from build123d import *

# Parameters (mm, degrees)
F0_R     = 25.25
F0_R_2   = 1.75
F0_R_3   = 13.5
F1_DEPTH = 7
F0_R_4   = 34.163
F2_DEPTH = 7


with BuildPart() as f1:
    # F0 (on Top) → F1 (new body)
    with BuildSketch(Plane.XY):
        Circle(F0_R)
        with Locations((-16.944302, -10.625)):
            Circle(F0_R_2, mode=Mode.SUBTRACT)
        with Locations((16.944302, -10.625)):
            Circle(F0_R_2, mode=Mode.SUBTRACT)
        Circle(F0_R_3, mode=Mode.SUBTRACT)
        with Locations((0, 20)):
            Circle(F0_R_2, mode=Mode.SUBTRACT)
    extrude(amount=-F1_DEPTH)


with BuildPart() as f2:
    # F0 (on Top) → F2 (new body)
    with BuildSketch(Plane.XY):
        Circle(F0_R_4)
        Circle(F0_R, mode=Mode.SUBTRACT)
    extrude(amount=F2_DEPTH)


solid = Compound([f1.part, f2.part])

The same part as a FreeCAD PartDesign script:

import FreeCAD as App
import Part
import Sketcher

V = App.Vector
Q = App.Units.Quantity

doc = App.newDocument("Part")
params = doc.addObject("Spreadsheet::Sheet", "Params")
for row, (alias, value) in enumerate([
    ("sketch1_diameter", "27 mm"),
    ("sketch1_diameter2", "50.5 mm"),
    ("sketch1_diameter3", "3.5 mm"),
    ("pad1_length", "7 mm"),
    ("sketch2_diameter", "50.5 mm"),
    ("pad2_length", "7 mm"),
], start=1):
    params.set(f"A{row}", alias)
    params.set(f"B{row}", "=" + value)
    params.setAlias(f"B{row}", alias)

body = doc.addObject("PartDesign::Body", "Body")

sketch1 = doc.addObject("Sketcher::SketchObject", "Sketch")
body.addObject(sketch1)
sketch1.AttachmentSupport = (doc.XY_Plane, [""])
sketch1.MapMode = "FlatFace"
sketch1.addGeometry([
    Part.Circle(V(0, 0, 0), V(0, 0, 1), 25.25),
    Part.Circle(V(-16.944302, -10.625, 0), V(0, 0, 1), 1.75),
    Part.Circle(V(0, 0, 0), V(0, 0, 1), 13.5),
    Part.Circle(V(16.944302, -10.625, 0), V(0, 0, 1), 1.75),
    Part.Circle(V(0, 20, 0), V(0, 0, 1), 1.75),
], False)
sketch1.addConstraint([
    Sketcher.Constraint("Coincident", 0, 3, -1, 1),
    Sketcher.Constraint("Coincident", 2, 3, -1, 1),
    Sketcher.Constraint("Equal", 1, 3),
    Sketcher.Constraint("Equal", 3, 4),
    Sketcher.Constraint("Symmetric", 1, 3, 3, 3, -2),
    Sketcher.Constraint("PointOnObject", 4, 3, -2),
    Sketcher.Constraint("Diameter", 2, Q("27 mm")),
    Sketcher.Constraint("Diameter", 0, Q("50.5 mm")),
    Sketcher.Constraint("Diameter", 1, Q("3.5 mm")),
    Sketcher.Constraint("DistanceY", -1, 1, 4, 3, Q("20 mm")),
    Sketcher.Constraint("DistanceY", 1, 3, -1, 1, Q("10.625 mm")),
    Sketcher.Constraint("DistanceX", 1, 3, -1, 1, Q("16.944302 mm")),
])
sketch1.setExpression("Constraints[6]", "Params.sketch1_diameter")
sketch1.setExpression("Constraints[7]", "Params.sketch1_diameter2")
sketch1.setExpression("Constraints[8]", "Params.sketch1_diameter3")
pad1 = doc.addObject("PartDesign::Pad", "Pad")
body.addObject(pad1)
pad1.Profile = sketch1
pad1.setExpression("Length", "Params.pad1_length")
pad1.Reversed = True
body2 = doc.addObject("PartDesign::Body", "Body001")

sketch2 = doc.addObject("Sketcher::SketchObject", "Sketch001")
body2.addObject(sketch2)
sketch2.AttachmentSupport = (doc.getObject("XY_Plane001"), [""])
sketch2.MapMode = "FlatFace"
sketch2.addGeometry([
    Part.Circle(V(0, 0, 0), V(0, 0, 1), 34.163),
    Part.Circle(V(0, 0, 0), V(0, 0, 1), 25.25),
], False)
sketch2.addConstraint([
    Sketcher.Constraint("Coincident", 0, 3, -1, 1),
    Sketcher.Constraint("Coincident", 1, 3, -1, 1),
    Sketcher.Constraint("Diameter", 1, Q("50.5 mm")),
    Sketcher.Constraint("Diameter", 0, Q("68.326 mm")),
])
sketch2.setExpression("Constraints[2]", "Params.sketch2_diameter")
pad2 = doc.addObject("PartDesign::Pad", "Pad001")
body2.addObject(pad2)
pad2.Profile = sketch2
pad2.setExpression("Length", "Params.pad2_length")

doc.recompute()
